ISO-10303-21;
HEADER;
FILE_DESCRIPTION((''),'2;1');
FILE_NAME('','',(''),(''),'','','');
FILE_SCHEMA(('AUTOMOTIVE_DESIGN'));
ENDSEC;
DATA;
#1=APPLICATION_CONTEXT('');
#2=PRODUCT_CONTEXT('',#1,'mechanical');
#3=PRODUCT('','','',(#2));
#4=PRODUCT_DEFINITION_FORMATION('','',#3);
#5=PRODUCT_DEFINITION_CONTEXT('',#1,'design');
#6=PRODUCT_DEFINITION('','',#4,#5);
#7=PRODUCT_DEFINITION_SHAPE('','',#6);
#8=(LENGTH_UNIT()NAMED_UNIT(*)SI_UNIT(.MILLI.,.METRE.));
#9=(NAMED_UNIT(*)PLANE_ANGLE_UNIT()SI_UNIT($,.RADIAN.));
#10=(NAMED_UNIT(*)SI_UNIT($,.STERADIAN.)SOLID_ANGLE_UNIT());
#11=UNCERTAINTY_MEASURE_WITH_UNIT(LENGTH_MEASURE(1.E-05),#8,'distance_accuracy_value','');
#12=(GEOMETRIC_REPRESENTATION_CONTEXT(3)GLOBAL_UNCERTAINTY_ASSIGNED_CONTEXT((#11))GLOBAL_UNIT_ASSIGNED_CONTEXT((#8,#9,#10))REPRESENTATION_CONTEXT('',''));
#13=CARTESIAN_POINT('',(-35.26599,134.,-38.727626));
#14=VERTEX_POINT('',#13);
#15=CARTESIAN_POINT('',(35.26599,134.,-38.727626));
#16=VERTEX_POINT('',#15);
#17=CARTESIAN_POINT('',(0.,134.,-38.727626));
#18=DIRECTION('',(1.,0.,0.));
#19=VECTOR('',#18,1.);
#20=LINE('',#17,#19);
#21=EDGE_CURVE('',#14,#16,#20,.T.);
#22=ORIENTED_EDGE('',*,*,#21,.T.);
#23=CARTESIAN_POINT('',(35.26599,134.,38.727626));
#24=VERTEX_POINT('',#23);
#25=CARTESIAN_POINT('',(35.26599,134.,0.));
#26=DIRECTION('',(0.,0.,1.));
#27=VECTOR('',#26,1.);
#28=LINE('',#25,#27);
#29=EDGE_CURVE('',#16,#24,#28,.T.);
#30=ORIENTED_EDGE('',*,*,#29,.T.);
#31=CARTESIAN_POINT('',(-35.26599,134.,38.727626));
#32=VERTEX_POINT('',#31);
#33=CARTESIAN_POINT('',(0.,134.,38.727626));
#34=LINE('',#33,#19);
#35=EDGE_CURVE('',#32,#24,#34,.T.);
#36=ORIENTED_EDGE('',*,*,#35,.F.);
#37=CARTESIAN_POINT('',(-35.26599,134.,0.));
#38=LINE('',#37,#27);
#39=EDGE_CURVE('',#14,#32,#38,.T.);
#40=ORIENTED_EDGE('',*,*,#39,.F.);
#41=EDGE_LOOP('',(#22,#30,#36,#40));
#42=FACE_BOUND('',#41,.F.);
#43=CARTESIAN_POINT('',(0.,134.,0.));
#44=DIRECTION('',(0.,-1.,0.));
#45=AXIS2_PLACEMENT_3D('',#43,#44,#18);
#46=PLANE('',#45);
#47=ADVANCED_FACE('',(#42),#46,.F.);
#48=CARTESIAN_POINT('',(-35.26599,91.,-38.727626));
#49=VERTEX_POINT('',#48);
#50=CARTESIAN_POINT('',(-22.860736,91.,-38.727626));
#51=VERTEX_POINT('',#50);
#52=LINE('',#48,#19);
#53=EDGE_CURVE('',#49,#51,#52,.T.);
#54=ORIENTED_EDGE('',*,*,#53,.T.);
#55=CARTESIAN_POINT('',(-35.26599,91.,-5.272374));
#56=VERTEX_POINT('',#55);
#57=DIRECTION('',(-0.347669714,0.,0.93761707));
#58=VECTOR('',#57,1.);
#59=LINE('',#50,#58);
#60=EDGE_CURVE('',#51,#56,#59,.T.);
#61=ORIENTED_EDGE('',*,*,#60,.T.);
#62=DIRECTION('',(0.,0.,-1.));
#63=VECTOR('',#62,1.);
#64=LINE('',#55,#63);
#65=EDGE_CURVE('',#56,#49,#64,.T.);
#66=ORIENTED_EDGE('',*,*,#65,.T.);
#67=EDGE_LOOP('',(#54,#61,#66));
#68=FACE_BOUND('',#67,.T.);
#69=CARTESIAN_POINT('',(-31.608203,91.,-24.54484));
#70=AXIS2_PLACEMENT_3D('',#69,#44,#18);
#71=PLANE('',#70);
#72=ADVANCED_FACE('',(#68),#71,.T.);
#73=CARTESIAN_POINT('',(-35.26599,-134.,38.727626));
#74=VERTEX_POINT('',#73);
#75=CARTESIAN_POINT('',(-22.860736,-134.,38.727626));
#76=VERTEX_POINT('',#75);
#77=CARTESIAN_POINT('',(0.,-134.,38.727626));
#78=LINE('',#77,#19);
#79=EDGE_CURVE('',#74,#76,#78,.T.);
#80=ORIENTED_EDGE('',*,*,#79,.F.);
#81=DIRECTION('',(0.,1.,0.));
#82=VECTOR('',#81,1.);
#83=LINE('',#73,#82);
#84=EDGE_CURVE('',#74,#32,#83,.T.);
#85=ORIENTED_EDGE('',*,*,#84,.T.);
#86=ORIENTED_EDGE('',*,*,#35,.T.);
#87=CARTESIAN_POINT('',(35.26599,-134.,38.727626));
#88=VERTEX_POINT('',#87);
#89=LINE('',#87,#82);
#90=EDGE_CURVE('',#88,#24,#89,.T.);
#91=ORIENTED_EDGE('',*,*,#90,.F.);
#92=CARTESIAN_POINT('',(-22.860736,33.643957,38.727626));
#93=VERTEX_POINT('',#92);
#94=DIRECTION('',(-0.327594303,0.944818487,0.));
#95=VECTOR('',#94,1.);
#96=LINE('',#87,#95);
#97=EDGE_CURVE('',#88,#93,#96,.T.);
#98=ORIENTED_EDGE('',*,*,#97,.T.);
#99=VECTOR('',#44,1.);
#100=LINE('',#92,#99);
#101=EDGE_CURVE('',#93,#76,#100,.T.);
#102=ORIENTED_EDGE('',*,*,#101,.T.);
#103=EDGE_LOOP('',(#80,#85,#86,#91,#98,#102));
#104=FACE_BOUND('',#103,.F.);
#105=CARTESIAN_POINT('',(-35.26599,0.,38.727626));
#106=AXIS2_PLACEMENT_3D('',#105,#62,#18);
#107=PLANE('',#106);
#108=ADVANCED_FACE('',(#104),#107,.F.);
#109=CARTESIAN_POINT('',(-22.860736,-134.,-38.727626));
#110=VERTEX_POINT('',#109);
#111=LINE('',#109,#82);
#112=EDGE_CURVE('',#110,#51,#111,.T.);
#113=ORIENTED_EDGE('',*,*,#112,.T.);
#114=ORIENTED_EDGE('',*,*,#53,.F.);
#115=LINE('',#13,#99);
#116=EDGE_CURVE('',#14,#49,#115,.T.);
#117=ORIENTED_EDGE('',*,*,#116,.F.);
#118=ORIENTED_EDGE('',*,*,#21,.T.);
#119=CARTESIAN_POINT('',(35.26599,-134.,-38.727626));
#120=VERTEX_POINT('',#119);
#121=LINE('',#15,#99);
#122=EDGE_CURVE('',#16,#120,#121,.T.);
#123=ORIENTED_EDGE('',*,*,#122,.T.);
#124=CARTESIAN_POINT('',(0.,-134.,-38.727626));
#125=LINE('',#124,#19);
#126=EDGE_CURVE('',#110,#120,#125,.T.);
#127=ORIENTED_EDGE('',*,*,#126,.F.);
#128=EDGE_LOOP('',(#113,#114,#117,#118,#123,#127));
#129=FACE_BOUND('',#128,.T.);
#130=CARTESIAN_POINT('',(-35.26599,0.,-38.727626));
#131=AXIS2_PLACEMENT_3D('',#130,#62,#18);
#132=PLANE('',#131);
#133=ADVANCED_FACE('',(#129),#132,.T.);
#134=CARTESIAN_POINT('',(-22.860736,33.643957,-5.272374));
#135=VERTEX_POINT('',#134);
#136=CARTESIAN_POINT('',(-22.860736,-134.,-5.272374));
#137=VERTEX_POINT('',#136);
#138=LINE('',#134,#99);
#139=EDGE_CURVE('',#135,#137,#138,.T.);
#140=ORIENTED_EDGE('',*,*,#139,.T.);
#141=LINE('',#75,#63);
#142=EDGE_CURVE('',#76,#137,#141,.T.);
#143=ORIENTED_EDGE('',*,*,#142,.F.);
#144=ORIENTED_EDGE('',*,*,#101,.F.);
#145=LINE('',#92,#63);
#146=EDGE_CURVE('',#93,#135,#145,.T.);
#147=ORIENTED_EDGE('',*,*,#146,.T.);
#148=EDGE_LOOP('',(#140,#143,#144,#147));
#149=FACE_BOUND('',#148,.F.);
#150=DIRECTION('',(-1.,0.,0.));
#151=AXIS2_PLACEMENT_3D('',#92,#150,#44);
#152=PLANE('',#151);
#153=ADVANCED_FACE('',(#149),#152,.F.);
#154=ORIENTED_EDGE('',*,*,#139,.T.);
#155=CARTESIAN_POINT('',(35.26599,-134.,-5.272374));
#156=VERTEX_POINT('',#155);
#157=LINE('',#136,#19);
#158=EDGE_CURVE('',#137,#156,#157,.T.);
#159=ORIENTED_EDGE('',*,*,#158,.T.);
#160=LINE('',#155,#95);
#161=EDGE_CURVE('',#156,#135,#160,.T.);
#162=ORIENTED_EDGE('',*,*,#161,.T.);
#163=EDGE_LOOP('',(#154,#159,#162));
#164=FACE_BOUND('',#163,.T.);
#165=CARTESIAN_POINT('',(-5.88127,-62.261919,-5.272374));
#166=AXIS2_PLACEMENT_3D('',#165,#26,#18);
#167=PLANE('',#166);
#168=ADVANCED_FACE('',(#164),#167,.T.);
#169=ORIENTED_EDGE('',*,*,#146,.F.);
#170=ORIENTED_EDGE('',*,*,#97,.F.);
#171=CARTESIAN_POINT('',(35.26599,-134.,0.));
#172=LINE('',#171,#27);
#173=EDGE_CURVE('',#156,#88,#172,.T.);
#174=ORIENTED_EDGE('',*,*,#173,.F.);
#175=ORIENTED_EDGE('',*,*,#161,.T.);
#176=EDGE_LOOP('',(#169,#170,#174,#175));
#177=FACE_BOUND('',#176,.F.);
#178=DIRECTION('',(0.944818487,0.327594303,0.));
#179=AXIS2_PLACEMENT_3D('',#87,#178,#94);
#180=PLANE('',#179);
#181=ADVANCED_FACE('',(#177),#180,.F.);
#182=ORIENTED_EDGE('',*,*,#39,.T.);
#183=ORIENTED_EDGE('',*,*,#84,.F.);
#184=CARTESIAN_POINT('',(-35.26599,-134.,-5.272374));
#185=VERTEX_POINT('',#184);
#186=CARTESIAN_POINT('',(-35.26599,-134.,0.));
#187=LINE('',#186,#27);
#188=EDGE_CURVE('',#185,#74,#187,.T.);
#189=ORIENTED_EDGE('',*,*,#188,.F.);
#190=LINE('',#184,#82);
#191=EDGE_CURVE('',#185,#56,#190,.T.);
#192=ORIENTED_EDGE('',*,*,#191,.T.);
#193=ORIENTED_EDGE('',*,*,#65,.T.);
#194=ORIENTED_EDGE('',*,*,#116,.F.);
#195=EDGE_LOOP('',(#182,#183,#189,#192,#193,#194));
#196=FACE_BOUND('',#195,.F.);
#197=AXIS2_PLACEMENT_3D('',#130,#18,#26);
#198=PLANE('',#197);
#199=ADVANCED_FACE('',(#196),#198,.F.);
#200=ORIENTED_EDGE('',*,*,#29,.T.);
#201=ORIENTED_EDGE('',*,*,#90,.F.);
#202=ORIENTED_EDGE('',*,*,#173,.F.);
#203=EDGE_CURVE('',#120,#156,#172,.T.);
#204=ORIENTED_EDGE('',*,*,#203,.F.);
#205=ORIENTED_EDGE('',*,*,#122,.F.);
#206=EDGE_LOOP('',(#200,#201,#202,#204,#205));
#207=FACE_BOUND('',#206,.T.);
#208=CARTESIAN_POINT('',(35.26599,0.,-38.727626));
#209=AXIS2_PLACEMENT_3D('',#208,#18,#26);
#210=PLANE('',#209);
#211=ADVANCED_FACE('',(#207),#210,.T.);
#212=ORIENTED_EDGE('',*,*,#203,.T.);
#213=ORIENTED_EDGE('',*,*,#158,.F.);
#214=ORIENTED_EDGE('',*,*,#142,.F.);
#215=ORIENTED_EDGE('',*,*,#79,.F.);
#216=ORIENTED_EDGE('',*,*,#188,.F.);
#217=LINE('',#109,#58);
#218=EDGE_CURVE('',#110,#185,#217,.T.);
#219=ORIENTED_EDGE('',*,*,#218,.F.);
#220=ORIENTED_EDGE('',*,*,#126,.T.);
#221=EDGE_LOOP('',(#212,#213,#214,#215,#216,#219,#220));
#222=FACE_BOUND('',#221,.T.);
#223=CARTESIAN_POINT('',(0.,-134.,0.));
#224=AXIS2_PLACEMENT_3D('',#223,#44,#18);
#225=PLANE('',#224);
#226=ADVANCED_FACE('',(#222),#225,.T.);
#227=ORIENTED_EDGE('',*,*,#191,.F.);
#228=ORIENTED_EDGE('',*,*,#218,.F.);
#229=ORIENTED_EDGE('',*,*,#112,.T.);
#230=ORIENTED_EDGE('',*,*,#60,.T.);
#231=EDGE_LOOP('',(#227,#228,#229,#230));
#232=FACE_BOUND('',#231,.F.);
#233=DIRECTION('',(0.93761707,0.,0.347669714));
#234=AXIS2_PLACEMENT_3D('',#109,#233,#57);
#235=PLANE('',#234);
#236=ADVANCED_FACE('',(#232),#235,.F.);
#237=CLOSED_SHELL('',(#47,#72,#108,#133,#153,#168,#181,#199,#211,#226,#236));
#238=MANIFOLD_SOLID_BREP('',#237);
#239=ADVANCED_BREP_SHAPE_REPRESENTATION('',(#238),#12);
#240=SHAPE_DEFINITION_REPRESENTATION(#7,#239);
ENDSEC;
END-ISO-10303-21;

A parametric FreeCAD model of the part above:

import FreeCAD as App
import Part
import Sketcher
from FreeCAD import Vector


def add_polygon(sketch, points):
    """Adds a closed chain of lines whose ends are joined by coincident constraints."""
    first, n = sketch.GeometryCount, len(points)
    for a, b in zip(points, points[1:] + points[:1]):
        sketch.addGeometry(Part.LineSegment(App.Vector(*a, 0), App.Vector(*b, 0)), False)
    for i in range(n):
        sketch.addConstraint(Sketcher.Constraint("Coincident", first + i, 2, first + (i + 1) % n, 1))

doc = App.newDocument("Part")
body = doc.addObject("PartDesign::Body", "Body")

sketch1 = body.newObject("Sketcher::SketchObject", "Sketch")
sketch1.AttachmentSupport = (doc.getObject("XZ_Plane"), [""])
sketch1.MapMode = "FlatFace"
add_polygon(sketch1, [(-35.26599, 38.727626), (-35.26599, -38.727626), (35.26599, -38.727626), (35.26599, 38.727626)])
sketch1.addConstraint(Sketcher.Constraint("Vertical", 0))
sketch1.addConstraint(Sketcher.Constraint("Horizontal", 1))
sketch1.addConstraint(Sketcher.Constraint("Vertical", 2))
sketch1.addConstraint(Sketcher.Constraint("Horizontal", 3))
sketch1.addConstraint(Sketcher.Constraint("Symmetric", 0, 2, 2, 2, -1, 1))
sketch1.addConstraint(Sketcher.Constraint("DistanceX", 1, 1, 1, 2, 70.53198))
sketch1.addConstraint(Sketcher.Constraint("DistanceY", 0, 2, 0, 1, 77.455252))
pad1 = body.newObject("PartDesign::Pad", "Pad")
pad1.Profile = sketch1
pad1.Length = 268
pad1.Midplane = True

sketch2 = body.newObject("Sketcher::SketchObject", "Sketch001")
sketch2.AttachmentSupport = (doc.getObject("XY_Plane"), [""])
sketch2.MapMode = "FlatFace"
sketch2.AttachmentOffset = App.Placement(Vector(0, 0, 38.727626), App.Rotation())
add_polygon(sketch2, [(-22.860736, 33.643957), (-22.860736, -134), (35.26599, -134)])
sketch2.addConstraint(Sketcher.Constraint("Vertical", 0))
sketch2.addConstraint(Sketcher.Constraint("Horizontal", 1))
sketch2.addConstraint(Sketcher.Constraint("DistanceY", 0, 2, -1, 1, 134.0))
sketch2.addConstraint(Sketcher.Constraint("DistanceX", 1, 1, 1, 2, 58.126726))
sketch2.addConstraint(Sketcher.Constraint("DistanceY", 0, 2, 0, 1, 167.643957))
sketch2.addConstraint(Sketcher.Constraint("DistanceX", -1, 1, 1, 2, 35.26599))
pocket1 = body.newObject("PartDesign::Pocket", "Pocket")
pocket1.Profile = sketch2
pocket1.Length = 44

sketch3 = body.newObject("Sketcher::SketchObject", "Sketch002")
sketch3.AttachmentSupport = (doc.getObject("XZ_Plane"), [""])
sketch3.MapMode = "FlatFace"
sketch3.AttachmentOffset = App.Placement(Vector(0, 0, 134), App.Rotation())
add_polygon(sketch3, [(-22.860736, -38.727626), (-35.26599, -5.272374), (-35.26599, -38.727626)])
sketch3.addConstraint(Sketcher.Constraint("Vertical", 1))
sketch3.addConstraint(Sketcher.Constraint("Horizontal", 2))
sketch3.addConstraint(Sketcher.Constraint("DistanceX", 2, 1, 2, 2, 12.405254))
sketch3.addConstraint(Sketcher.Constraint("DistanceY", 1, 2, 1, 1, 33.455252))
sketch3.addConstraint(Sketcher.Constraint("DistanceX", 0, 2, -1, 1, 35.26599))
sketch3.addConstraint(Sketcher.Constraint("DistanceY", 0, 2, -1, 1, 5.272374))
pocket2 = body.newObject("PartDesign::Pocket", "Pocket001")
pocket2.Profile = sketch3
pocket2.Length = 225

doc.recompute()
